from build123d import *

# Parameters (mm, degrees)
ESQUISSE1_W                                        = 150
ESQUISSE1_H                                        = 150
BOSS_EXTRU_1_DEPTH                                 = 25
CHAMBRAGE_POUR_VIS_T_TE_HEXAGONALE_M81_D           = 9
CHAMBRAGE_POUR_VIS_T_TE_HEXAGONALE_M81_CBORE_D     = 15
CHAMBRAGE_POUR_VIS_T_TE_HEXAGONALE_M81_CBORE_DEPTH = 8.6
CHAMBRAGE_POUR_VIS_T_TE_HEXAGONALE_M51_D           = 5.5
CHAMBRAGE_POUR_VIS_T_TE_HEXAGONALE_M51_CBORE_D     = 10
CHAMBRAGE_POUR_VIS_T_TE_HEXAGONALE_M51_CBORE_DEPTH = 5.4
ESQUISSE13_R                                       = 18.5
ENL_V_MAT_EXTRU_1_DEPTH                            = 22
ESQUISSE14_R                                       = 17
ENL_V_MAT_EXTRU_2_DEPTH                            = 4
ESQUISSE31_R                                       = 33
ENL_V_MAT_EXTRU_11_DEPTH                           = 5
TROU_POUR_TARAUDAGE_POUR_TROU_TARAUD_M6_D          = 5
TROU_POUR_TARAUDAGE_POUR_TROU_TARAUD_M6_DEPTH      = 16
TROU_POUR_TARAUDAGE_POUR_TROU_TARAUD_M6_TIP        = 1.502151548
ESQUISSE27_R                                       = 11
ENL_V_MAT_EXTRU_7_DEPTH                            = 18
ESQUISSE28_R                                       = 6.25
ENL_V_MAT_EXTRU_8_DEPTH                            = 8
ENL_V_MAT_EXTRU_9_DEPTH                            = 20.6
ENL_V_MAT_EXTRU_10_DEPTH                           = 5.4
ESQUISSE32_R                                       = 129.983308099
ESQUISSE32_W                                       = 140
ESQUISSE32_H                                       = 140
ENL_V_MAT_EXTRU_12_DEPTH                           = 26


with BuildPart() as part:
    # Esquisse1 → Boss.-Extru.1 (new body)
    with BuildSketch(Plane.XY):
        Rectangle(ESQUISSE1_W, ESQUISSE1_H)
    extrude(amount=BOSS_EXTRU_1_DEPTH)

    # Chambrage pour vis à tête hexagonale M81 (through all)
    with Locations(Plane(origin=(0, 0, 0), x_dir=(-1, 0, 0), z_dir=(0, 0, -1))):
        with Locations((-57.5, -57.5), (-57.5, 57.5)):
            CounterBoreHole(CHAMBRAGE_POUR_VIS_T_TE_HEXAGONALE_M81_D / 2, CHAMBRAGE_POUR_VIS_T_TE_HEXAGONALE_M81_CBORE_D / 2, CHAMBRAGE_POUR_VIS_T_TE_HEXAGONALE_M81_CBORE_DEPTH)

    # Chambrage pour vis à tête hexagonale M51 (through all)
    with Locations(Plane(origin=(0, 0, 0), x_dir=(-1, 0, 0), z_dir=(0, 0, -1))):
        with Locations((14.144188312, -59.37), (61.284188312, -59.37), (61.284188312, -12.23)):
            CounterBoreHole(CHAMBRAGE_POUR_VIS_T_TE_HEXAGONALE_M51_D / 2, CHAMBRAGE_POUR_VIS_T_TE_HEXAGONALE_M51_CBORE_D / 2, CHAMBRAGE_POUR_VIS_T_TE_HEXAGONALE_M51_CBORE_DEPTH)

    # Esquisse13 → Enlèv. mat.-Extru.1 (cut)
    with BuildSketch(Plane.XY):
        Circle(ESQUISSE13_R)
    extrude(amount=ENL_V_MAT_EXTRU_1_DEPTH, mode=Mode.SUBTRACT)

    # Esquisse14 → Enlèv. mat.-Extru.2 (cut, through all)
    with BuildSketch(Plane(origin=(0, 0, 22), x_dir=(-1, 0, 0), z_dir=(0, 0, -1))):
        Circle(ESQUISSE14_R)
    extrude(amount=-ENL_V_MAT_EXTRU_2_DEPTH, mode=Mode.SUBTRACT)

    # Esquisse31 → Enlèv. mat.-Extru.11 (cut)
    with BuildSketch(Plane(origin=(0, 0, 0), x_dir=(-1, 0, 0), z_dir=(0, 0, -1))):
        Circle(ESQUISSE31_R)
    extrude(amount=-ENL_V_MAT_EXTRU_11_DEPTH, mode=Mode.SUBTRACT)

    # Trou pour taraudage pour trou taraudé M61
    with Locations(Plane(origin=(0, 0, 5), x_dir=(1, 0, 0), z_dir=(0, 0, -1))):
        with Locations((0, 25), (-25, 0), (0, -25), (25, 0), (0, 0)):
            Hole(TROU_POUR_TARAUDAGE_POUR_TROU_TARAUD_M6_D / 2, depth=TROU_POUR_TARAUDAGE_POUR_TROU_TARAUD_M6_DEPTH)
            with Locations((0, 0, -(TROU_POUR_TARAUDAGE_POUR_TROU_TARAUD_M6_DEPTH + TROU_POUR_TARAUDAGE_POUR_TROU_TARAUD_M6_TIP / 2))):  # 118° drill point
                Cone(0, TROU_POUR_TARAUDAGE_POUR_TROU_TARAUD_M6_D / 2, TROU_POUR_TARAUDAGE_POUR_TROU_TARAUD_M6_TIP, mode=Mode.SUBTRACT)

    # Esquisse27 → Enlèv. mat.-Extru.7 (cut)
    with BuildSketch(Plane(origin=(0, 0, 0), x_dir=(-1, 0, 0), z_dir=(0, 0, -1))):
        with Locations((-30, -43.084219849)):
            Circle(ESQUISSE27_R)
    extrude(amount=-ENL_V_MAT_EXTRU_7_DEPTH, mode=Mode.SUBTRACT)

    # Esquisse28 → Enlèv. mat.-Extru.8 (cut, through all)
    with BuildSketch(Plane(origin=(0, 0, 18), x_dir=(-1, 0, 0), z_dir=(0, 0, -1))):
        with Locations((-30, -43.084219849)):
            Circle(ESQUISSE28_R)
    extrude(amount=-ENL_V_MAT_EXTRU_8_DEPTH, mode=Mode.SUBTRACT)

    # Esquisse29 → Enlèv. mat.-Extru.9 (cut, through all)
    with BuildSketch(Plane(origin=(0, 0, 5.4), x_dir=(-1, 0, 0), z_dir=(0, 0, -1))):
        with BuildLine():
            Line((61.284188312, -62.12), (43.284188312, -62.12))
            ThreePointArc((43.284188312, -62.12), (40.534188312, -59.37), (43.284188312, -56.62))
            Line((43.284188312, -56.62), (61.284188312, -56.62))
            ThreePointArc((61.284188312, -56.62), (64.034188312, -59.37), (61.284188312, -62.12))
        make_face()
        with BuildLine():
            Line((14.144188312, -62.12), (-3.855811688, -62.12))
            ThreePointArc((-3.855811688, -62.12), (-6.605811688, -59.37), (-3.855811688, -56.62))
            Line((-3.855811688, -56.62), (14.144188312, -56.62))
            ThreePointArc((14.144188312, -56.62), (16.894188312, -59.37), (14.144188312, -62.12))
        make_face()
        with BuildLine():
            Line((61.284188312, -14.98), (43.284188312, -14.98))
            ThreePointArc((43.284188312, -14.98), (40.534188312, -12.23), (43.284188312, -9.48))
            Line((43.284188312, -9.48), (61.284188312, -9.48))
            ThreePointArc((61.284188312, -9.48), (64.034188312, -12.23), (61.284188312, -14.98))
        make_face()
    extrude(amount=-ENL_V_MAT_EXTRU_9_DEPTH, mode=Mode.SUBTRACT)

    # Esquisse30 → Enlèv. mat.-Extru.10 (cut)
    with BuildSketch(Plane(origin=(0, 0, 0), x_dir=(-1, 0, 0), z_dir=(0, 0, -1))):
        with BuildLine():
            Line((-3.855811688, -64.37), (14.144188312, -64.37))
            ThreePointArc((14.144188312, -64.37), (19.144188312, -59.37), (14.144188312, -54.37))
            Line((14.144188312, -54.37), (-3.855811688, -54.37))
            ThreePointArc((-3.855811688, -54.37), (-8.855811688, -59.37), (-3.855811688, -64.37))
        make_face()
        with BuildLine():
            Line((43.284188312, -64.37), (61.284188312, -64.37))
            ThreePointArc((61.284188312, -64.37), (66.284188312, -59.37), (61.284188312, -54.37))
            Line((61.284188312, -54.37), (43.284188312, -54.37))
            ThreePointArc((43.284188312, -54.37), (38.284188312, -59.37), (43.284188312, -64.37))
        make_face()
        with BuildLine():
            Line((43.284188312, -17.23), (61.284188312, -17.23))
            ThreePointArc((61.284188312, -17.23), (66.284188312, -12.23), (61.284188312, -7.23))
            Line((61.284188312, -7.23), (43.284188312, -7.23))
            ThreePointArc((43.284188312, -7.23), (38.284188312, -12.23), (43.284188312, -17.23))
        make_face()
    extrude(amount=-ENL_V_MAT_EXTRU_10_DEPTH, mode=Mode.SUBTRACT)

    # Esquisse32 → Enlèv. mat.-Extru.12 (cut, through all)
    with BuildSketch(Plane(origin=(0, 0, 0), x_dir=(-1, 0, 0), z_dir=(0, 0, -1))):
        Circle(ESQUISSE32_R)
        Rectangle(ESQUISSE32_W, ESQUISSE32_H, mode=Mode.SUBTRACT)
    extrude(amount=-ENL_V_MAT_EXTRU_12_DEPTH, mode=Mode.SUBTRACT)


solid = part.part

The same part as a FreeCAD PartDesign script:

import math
import FreeCAD as App
import Part
import Sketcher
from FreeCAD import Vector


def add_polygon(sketch, points):
    """Adds a closed chain of lines whose ends are joined by coincident constraints."""
    first, n = sketch.GeometryCount, len(points)
    for a, b in zip(points, points[1:] + points[:1]):
        sketch.addGeometry(Part.LineSegment(App.Vector(*a, 0), App.Vector(*b, 0)), False)
    for i in range(n):
        sketch.addConstraint(Sketcher.Constraint("Coincident", first + i, 2, first + (i + 1) % n, 1))

doc = App.newDocument("Part")
body = doc.addObject("PartDesign::Body", "Body")

# Sketch on XY plane
sketch1 = body.newObject("Sketcher::SketchObject", "Sketch")
sketch1.AttachmentSupport = (doc.getObject("XY_Plane"), [""])
sketch1.MapMode = "FlatFace"
add_polygon(sketch1, [(-75, 75), (-75, -75), (75, -75), (75, 75)])  # lines 0-3
sketch1.addConstraint(Sketcher.Constraint("Vertical", 0))
sketch1.addConstraint(Sketcher.Constraint("Horizontal", 1))
sketch1.addConstraint(Sketcher.Constraint("Vertical", 2))
sketch1.addConstraint(Sketcher.Constraint("Horizontal", 3))
sketch1.addConstraint(Sketcher.Constraint("Symmetric", 0, 2, 2, 2, -1, 1))
sketch1.addConstraint(Sketcher.Constraint("Equal", 3, 0))
sketch1.addConstraint(Sketcher.Constraint("DistanceX", 1, 1, 1, 2, 150.0))
pad1 = body.newObject("PartDesign::Pad", "Pad")
pad1.Profile = sketch1
pad1.Length = 25

# Sketch on XY plane
sketch2 = body.newObject("Sketcher::SketchObject", "Sketch001")
sketch2.AttachmentSupport = (doc.getObject("XY_Plane"), [""])
sketch2.MapMode = "FlatFace"
sketch2.addGeometry(Part.Circle(Vector(57.5, -57.5, 0), Vector(0, 0, 1), 4.5), False)
sketch2.addGeometry(Part.Circle(Vector(57.5, 57.5, 0), Vector(0, 0, 1), 4.5), False)
sketch2.addConstraint(Sketcher.Constraint("Equal", 0, 1))
sketch2.addConstraint(Sketcher.Constraint("Symmetric", 0, 3, 1, 3, -1))
sketch2.addConstraint(Sketcher.Constraint("Diameter", 0, 9.0))
sketch2.addConstraint(Sketcher.Constraint("DistanceY", 0, 3, 1, 3, 115.0))
sketch2.addConstraint(Sketcher.Constraint("DistanceX", -1, 1, 0, 3, 57.5))
doc.recompute()
hole = body.newObject("PartDesign::Hole", "Hole")
hole.Profile = sketch2
hole.ThreadType = "None"
hole.Diameter = 9
hole.DepthType = "ThroughAll"
hole.HoleCutType = "Counterbore"
hole.HoleCutDiameter = 15
hole.HoleCutDepth = 8.6
hole.Reversed = True

# Sketch on XY plane
sketch3 = body.newObject("Sketcher::SketchObject", "Sketch002")
sketch3.AttachmentSupport = (doc.getObject("XY_Plane"), [""])
sketch3.MapMode = "FlatFace"
sketch3.addGeometry(Part.Circle(Vector(-14.1, -59.4, 0), Vector(0, 0, 1), 2.8), False)
sketch3.addGeometry(Part.Circle(Vector(-61.3, -59.4, 0), Vector(0, 0, 1), 2.8), False)
sketch3.addGeometry(Part.Circle(Vector(-61.3, -12.2, 0), Vector(0, 0, 1), 2.8), False)
sketch3.addConstraint(Sketcher.Constraint("Equal", 0, 1))
sketch3.addConstraint(Sketcher.Constraint("Equal", 1, 2))
sketch3.addConstraint(Sketcher.Constraint("Horizontal", 0, 3, 1, 3))
sketch3.addConstraint(Sketcher.Constraint("Vertical", 1, 3, 2, 3))
sketch3.addConstraint(Sketcher.Constraint("Diameter", 0, 5.5))
sketch3.addConstraint(Sketcher.Constraint("DistanceY", 0, 3, -1, 1, 59.37))
sketch3.addConstraint(Sketcher.Constraint("DistanceY", 2, 3, -1, 1, 12.23))
sketch3.addConstraint(Sketcher.Constraint("DistanceX", 1, 3, 0, 3, 47.14))
sketch3.addConstraint(Sketcher.Constraint("DistanceX", 0, 3, -1, 1, 14.144188))
doc.recompute()
hole2 = body.newObject("PartDesign::Hole", "Hole001")
hole2.Profile = sketch3
hole2.ThreadType = "None"
hole2.Diameter = 5.5
hole2.DepthType = "ThroughAll"
hole2.HoleCutType = "Counterbore"
hole2.HoleCutDiameter = 10
hole2.HoleCutDepth = 5.4
hole2.Reversed = True

# Sketch on XY plane
sketch4 = body.newObject("Sketcher::SketchObject", "Sketch003")
sketch4.AttachmentSupport = (doc.getObject("XY_Plane"), [""])
sketch4.MapMode = "FlatFace"
sketch4.addGeometry(Part.Circle(Vector(0, 0, 0), Vector(0, 0, 1), 18), False)
sketch4.addConstraint(Sketcher.Constraint("Coincident", 0, 3, -1, 1))
sketch4.addConstraint(Sketcher.Constraint("Diameter", 0, 37.0))
pocket1 = body.newObject("PartDesign::Pocket", "Pocket")
pocket1.Profile = sketch4
pocket1.Length = 22
pocket1.Reversed = True

# Sketch on XY plane
sketch5 = body.newObject("Sketcher::SketchObject", "Sketch004")
sketch5.AttachmentSupport = (doc.getObject("XY_Plane"), [""])
sketch5.MapMode = "FlatFace"
sketch5.AttachmentOffset = App.Placement(Vector(0, 0, 22), App.Rotation())
sketch5.addGeometry(Part.Circle(Vector(0, 0, 0), Vector(0, 0, 1), 17), False)
sketch5.addConstraint(Sketcher.Constraint("Coincident", 0, 3, -1, 1))
sketch5.addConstraint(Sketcher.Constraint("Diameter", 0, 34.0))
pocket2 = body.newObject("PartDesign::Pocket", "Pocket001")
pocket2.Profile = sketch5
pocket2.Type = "ThroughAll"
pocket2.Reversed = True

# Sketch on XY plane
sketch6 = body.newObject("Sketcher::SketchObject", "Sketch005")
sketch6.AttachmentSupport = (doc.getObject("XY_Plane"), [""])
sketch6.MapMode = "FlatFace"
sketch6.addGeometry(Part.Circle(Vector(0, 0, 0), Vector(0, 0, 1), 33), False)
sketch6.addConstraint(Sketcher.Constraint("Coincident", 0, 3, -1, 1))
sketch6.addConstraint(Sketcher.Constraint("Diameter", 0, 66.0))
pocket3 = body.newObject("PartDesign::Pocket", "Pocket002")
pocket3.Profile = sketch6
pocket3.Length = 5
pocket3.Reversed = True

# Sketch on XY plane
sketch7 = body.newObject("Sketcher::SketchObject", "Sketch006")
sketch7.AttachmentSupport = (doc.getObject("XY_Plane"), [""])
sketch7.MapMode = "FlatFace"
sketch7.AttachmentOffset = App.Placement(Vector(0, 0, 5), App.Rotation())
sketch7.addGeometry(Part.Circle(Vector(0, -25, 0), Vector(0, 0, 1), 2.5), False)
sketch7.addGeometry(Part.Circle(Vector(-25, 0, 0), Vector(0, 0, 1), 2.5), False)
sketch7.addGeometry(Part.Circle(Vector(0, 25, 0), Vector(0, 0, 1), 2.5), False)
sketch7.addGeometry(Part.Circle(Vector(25, 0, 0), Vector(0, 0, 1), 2.5), False)
sketch7.addGeometry(Part.Circle(Vector(0, 0, 0), Vector(0, 0, 1), 2.5), False)
sketch7.addConstraint(Sketcher.Constraint("Coincident", 4, 3, -1, 1))
sketch7.addConstraint(Sketcher.Constraint("Equal", 0, 1))
sketch7.addConstraint(Sketcher.Constraint("Equal", 1, 2))
sketch7.addConstraint(Sketcher.Constraint("Equal", 2, 3))
sketch7.addConstraint(Sketcher.Constraint("Equal", 3, 4))
sketch7.addConstraint(Sketcher.Constraint("Symmetric", 0, 3, 2, 3, -1, 1))
sketch7.addConstraint(Sketcher.Constraint("Symmetric", 1, 3, 3, 3, -1, 1))
sketch7.addConstraint(Sketcher.Constraint("PointOnObject", 0, 3, -2))
sketch7.addConstraint(Sketcher.Constraint("PointOnObject", 1, 3, -1))
sketch7.addConstraint(Sketcher.Constraint("Diameter", 0, 5.0))
sketch7.addConstraint(Sketcher.Constraint("DistanceY", 0, 3, -1, 1, 25.0))
sketch7.addConstraint(Sketcher.Constraint("DistanceX", 1, 3, -1, 1, 25.0))
doc.recompute()
hole3 = body.newObject("PartDesign::Hole", "Hole002")
hole3.Profile = sketch7
hole3.ThreadType = "None"
hole3.Diameter = 5
hole3.DepthType = "Dimension"
hole3.Depth = 16
hole3.DrillPoint = "Angled"
hole3.DrillPointAngle = 118
hole3.Reversed = True

# Sketch on XY plane
sketch8 = body.newObject("Sketcher::SketchObject", "Sketch007")
sketch8.AttachmentSupport = (doc.getObject("XY_Plane"), [""])
sketch8.MapMode = "FlatFace"
sketch8.addGeometry(Part.Circle(Vector(30, -43, 0), Vector(0, 0, 1), 11), False)
sketch8.addConstraint(Sketcher.Constraint("Diameter", 0, 22.0))
sketch8.addConstraint(Sketcher.Constraint("DistanceX", -1, 1, 0, 3, 30.0))
sketch8.addConstraint(Sketcher.Constraint("DistanceY", 0, 3, -1, 1, 43.08422))
pocket4 = body.newObject("PartDesign::Pocket", "Pocket003")
pocket4.Profile = sketch8
pocket4.Length = 18
pocket4.Reversed = True

# Sketch on XY plane
sketch9 = body.newObject("Sketcher::SketchObject", "Sketch008")
sketch9.AttachmentSupport = (doc.getObject("XY_Plane"), [""])
sketch9.MapMode = "FlatFace"
sketch9.AttachmentOffset = App.Placement(Vector(0, 0, 18), App.Rotation())
sketch9.addGeometry(Part.Circle(Vector(30, -43, 0), Vector(0, 0, 1), 6), False)
sketch9.addConstraint(Sketcher.Constraint("Diameter", 0, 12.5))
sketch9.addConstraint(Sketcher.Constraint("DistanceX", -1, 1, 0, 3, 30.0))
sketch9.addConstraint(Sketcher.Constraint("DistanceY", 0, 3, -1, 1, 43.08422))
pocket5 = body.newObject("PartDesign::Pocket", "Pocket004")
pocket5.Profile = sketch9
pocket5.Type = "ThroughAll"
pocket5.Reversed = True

# Sketch on XY plane
sketch10 = body.newObject("Sketcher::SketchObject", "Sketch009")
sketch10.AttachmentSupport = (doc.getObject("XY_Plane"), [""])
sketch10.MapMode = "FlatFace"
sketch10.AttachmentOffset = App.Placement(Vector(0, 0, 5.4), App.Rotation())
sketch10.addGeometry(Part.LineSegment(Vector(-43.3, -62.1, 0), Vector(-61.3, -62.1, 0)), False)
sketch10.addGeometry(Part.ArcOfCircle(Part.Circle(Vector(-61.3, -59.4, 0), Vector(0, 0, 1), 2.8), math.radians(90), math.radians(270)), False)
sketch10.addGeometry(Part.LineSegment(Vector(-61.3, -56.6, 0), Vector(-43.3, -56.6, 0)), False)
sketch10.addGeometry(Part.ArcOfCircle(Part.Circle(Vector(-43.3, -59.4, 0), Vector(0, 0, 1), 2.8), math.radians(-90), math.radians(90)), False)
sketch10.addGeometry(Part.LineSegment(Vector(3.9, -62.1, 0), Vector(-14.1, -62.1, 0)), False)
sketch10.addGeometry(Part.ArcOfCircle(Part.Circle(Vector(-14.1, -59.4, 0), Vector(0, 0, 1), 2.8), math.radians(90), math.radians(270)), False)
sketch10.addGeometry(Part.LineSegment(Vector(-14.1, -56.6, 0), Vector(3.9, -56.6, 0)), False)
sketch10.addGeometry(Part.ArcOfCircle(Part.Circle(Vector(3.9, -59.4, 0), Vector(0, 0, 1), 2.8), math.radians(-90), math.radians(90)), False)
sketch10.addGeometry(Part.LineSegment(Vector(-43.3, -15, 0), Vector(-61.3, -15, 0)), False)
sketch10.addGeometry(Part.ArcOfCircle(Part.Circle(Vector(-61.3, -12.2, 0), Vector(0, 0, 1), 2.8), math.radians(90), math.radians(270)), False)
sketch10.addGeometry(Part.LineSegment(Vector(-61.3, -9.5, 0), Vector(-43.3, -9.5, 0)), False)
sketch10.addGeometry(Part.ArcOfCircle(Part.Circle(Vector(-43.3, -12.2, 0), Vector(0, 0, 1), 2.8), math.radians(-90), math.radians(90)), False)
sketch10.addConstraint(Sketcher.Constraint("Tangent", 0, 2, 1, 2))
sketch10.addConstraint(Sketcher.Constraint("Tangent", 1, 1, 2, 1))
sketch10.addConstraint(Sketcher.Constraint("Tangent", 2, 2, 3, 2))
sketch10.addConstraint(Sketcher.Constraint("Tangent", 3, 1, 0, 1))
sketch10.addConstraint(Sketcher.Constraint("Tangent", 4, 2, 5, 2))
sketch10.addConstraint(Sketcher.Constraint("Tangent", 5, 1, 6, 1))
sketch10.addConstraint(Sketcher.Constraint("Tangent", 6, 2, 7, 2))
sketch10.addConstraint(Sketcher.Constraint("Tangent", 7, 1, 4, 1))
sketch10.addConstraint(Sketcher.Constraint("Tangent", 8, 2, 9, 2))
sketch10.addConstraint(Sketcher.Constraint("Tangent", 9, 1, 10, 1))
sketch10.addConstraint(Sketcher.Constraint("Tangent", 10, 2, 11, 2))
sketch10.addConstraint(Sketcher.Constraint("Tangent", 11, 1, 8, 1))
sketch10.addConstraint(Sketcher.Constraint("Horizontal", 0))
sketch10.addConstraint(Sketcher.Constraint("Horizontal", 2))
sketch10.addConstraint(Sketcher.Constraint("Horizontal", 4))
sketch10.addConstraint(Sketcher.Constraint("Horizontal", 6))
sketch10.addConstraint(Sketcher.Constraint("Horizontal", 8))
sketch10.addConstraint(Sketcher.Constraint("Horizontal", 10))
sketch10.addConstraint(Sketcher.Constraint("Equal", 3, 5))
sketch10.addConstraint(Sketcher.Constraint("Equal", 7, 9))
sketch10.addConstraint(Sketcher.Constraint("Horizontal", 3, 3, 5, 3))
sketch10.addConstraint(Sketcher.Constraint("Vertical", 1, 3, 9, 3))
sketch10.addConstraint(Sketcher.Constraint("Vertical", 3, 3, 11, 3))
sketch10.addConstraint(Sketcher.Constraint("Equal", 2, 4))
sketch10.addConstraint(Sketcher.Constraint("DistanceX", 0, 2, 0, 1, 18.0))
sketch10.addConstraint(Sketcher.Constraint("Radius", 1, 2.75))
sketch10.addConstraint(Sketcher.Constraint("DistanceY", 1, 3, -1, 1, 59.37))
sketch10.addConstraint(Sketcher.Constraint("DistanceY", 9, 3, -1, 1, 12.23))
sketch10.addConstraint(Sketcher.Constraint("DistanceX", 3, 3, 5, 3, 29.14))
sketch10.addConstraint(Sketcher.Constraint("DistanceX", 1, 3, -1, 1, 61.284188))
pocket6 = body.newObject("PartDesign::Pocket", "Pocket005")
pocket6.Profile = sketch10
pocket6.Type = "ThroughAll"
pocket6.Reversed = True

# Sketch on XY plane
sketch11 = body.newObject("Sketcher::SketchObject", "Sketch010")
sketch11.AttachmentSupport = (doc.getObject("XY_Plane"), [""])
sketch11.MapMode = "FlatFace"
sketch11.addGeometry(Part.LineSegment(Vector(4, -64, 0), Vector(-14, -64, 0)), False)
sketch11.addGeometry(Part.ArcOfCircle(Part.Circle(Vector(-14, -59, 0), Vector(0, 0, 1), 5), math.radians(90), math.radians(270)), False)
sketch11.addGeometry(Part.LineSegment(Vector(-14, -54, 0), Vector(4, -54, 0)), False)
sketch11.addGeometry(Part.ArcOfCircle(Part.Circle(Vector(4, -59, 0), Vector(0, 0, 1), 5), math.radians(-90), math.radians(90)), False)
sketch11.addGeometry(Part.LineSegment(Vector(-43, -64, 0), Vector(-61, -64, 0)), False)
sketch11.addGeometry(Part.ArcOfCircle(Part.Circle(Vector(-61, -59, 0), Vector(0, 0, 1), 5), math.radians(90), math.radians(270)), False)
sketch11.addGeometry(Part.LineSegment(Vector(-61, -54, 0), Vector(-43, -54, 0)), False)
sketch11.addGeometry(Part.ArcOfCircle(Part.Circle(Vector(-43, -59, 0), Vector(0, 0, 1), 5), math.radians(-90), math.radians(90)), False)
sketch11.addGeometry(Part.LineSegment(Vector(-43, -17, 0), Vector(-61, -17, 0)), False)
sketch11.addGeometry(Part.ArcOfCircle(Part.Circle(Vector(-61, -12, 0), Vector(0, 0, 1), 5), math.radians(90), math.radians(270)), False)
sketch11.addGeometry(Part.LineSegment(Vector(-61, -7, 0), Vector(-43, -7, 0)), False)
sketch11.addGeometry(Part.ArcOfCircle(Part.Circle(Vector(-43, -12, 0), Vector(0, 0, 1), 5), math.radians(-90), math.radians(90)), False)
sketch11.addConstraint(Sketcher.Constraint("Tangent", 0, 2, 1, 2))
sketch11.addConstraint(Sketcher.Constraint("Tangent", 1, 1, 2, 1))
sketch11.addConstraint(Sketcher.Constraint("Tangent", 2, 2, 3, 2))
sketch11.addConstraint(Sketcher.Constraint("Tangent", 3, 1, 0, 1))
sketch11.addConstraint(Sketcher.Constraint("Tangent", 4, 2, 5, 2))
sketch11.addConstraint(Sketcher.Constraint("Tangent", 5, 1, 6, 1))
sketch11.addConstraint(Sketcher.Constraint("Tangent", 6, 2, 7, 2))
sketch11.addConstraint(Sketcher.Constraint("Tangent", 7, 1, 4, 1))
sketch11.addConstraint(Sketcher.Constraint("Tangent", 8, 2, 9, 2))
sketch11.addConstraint(Sketcher.Constraint("Tangent", 9, 1, 10, 1))
sketch11.addConstraint(Sketcher.Constraint("Tangent", 10, 2, 11, 2))
sketch11.addConstraint(Sketcher.Constraint("Tangent", 11, 1, 8, 1))
sketch11.addConstraint(Sketcher.Constraint("Horizontal", 0))
sketch11.addConstraint(Sketcher.Constraint("Horizontal", 2))
sketch11.addConstraint(Sketcher.Constraint("Horizontal", 4))
sketch11.addConstraint(Sketcher.Constraint("Horizontal", 6))
sketch11.addConstraint(Sketcher.Constraint("Horizontal", 8))
sketch11.addConstraint(Sketcher.Constraint("Horizontal", 10))
sketch11.addConstraint(Sketcher.Constraint("Equal", 3, 5))
sketch11.addConstraint(Sketcher.Constraint("Equal", 7, 9))
sketch11.addConstraint(Sketcher.Constraint("Horizontal", 3, 3, 5, 3))
sketch11.addConstraint(Sketcher.Constraint("Vertical", 5, 3, 9, 3))
sketch11.addConstraint(Sketcher.Constraint("Vertical", 7, 3, 11, 3))
sketch11.addConstraint(Sketcher.Constraint("Equal", 2, 4))
sketch11.addConstraint(Sketcher.Constraint("Radius", 1, 5.0))
sketch11.addConstraint(Sketcher.Constraint("DistanceX", 0, 2, 0, 1, 18.0))
sketch11.addConstraint(Sketcher.Constraint("DistanceY", 1, 3, -1, 1, 59.37))
sketch11.addConstraint(Sketcher.Constraint("DistanceY", 9, 3, -1, 1, 12.23))
sketch11.addConstraint(Sketcher.Constraint("DistanceX", 5, 3, 1, 3, 47.14))
sketch11.addConstraint(Sketcher.Constraint("DistanceX", 1, 3, -1, 1, 14.144188))
pocket7 = body.newObject("PartDesign::Pocket", "Pocket006")
pocket7.Profile = sketch11
pocket7.Length = 5.4
pocket7.Reversed = True

# Sketch on XY plane
sketch12 = body.newObject("Sketcher::SketchObject", "Sketch011")
sketch12.AttachmentSupport = (doc.getObject("XY_Plane"), [""])
sketch12.MapMode = "FlatFace"
sketch12.addGeometry(Part.Circle(Vector(0, 0, 0), Vector(0, 0, 1), 130), False)  # 0
add_polygon(sketch12, [(-70, -70), (70, -70), (70, 70), (-70, 70)])  # lines 1-4
sketch12.addConstraint(Sketcher.Constraint("Horizontal", 1))
sketch12.addConstraint(Sketcher.Constraint("Vertical", 2))
sketch12.addConstraint(Sketcher.Constraint("Horizontal", 3))
sketch12.addConstraint(Sketcher.Constraint("Vertical", 4))
sketch12.addConstraint(Sketcher.Constraint("Coincident", 0, 3, -1, 1))
sketch12.addConstraint(Sketcher.Constraint("Symmetric", 1, 2, 3, 2, -1, 1))
sketch12.addConstraint(Sketcher.Constraint("Equal", 3, 2))
sketch12.addConstraint(Sketcher.Constraint("DistanceX", 1, 1, 1, 2, 140.0))
sketch12.addConstraint(Sketcher.Constraint("Diameter", 0, 259.966616))
pocket8 = body.newObject("PartDesign::Pocket", "Pocket007")
pocket8.Profile = sketch12
pocket8.Type = "ThroughAll"
pocket8.Reversed = True

doc.recompute()
